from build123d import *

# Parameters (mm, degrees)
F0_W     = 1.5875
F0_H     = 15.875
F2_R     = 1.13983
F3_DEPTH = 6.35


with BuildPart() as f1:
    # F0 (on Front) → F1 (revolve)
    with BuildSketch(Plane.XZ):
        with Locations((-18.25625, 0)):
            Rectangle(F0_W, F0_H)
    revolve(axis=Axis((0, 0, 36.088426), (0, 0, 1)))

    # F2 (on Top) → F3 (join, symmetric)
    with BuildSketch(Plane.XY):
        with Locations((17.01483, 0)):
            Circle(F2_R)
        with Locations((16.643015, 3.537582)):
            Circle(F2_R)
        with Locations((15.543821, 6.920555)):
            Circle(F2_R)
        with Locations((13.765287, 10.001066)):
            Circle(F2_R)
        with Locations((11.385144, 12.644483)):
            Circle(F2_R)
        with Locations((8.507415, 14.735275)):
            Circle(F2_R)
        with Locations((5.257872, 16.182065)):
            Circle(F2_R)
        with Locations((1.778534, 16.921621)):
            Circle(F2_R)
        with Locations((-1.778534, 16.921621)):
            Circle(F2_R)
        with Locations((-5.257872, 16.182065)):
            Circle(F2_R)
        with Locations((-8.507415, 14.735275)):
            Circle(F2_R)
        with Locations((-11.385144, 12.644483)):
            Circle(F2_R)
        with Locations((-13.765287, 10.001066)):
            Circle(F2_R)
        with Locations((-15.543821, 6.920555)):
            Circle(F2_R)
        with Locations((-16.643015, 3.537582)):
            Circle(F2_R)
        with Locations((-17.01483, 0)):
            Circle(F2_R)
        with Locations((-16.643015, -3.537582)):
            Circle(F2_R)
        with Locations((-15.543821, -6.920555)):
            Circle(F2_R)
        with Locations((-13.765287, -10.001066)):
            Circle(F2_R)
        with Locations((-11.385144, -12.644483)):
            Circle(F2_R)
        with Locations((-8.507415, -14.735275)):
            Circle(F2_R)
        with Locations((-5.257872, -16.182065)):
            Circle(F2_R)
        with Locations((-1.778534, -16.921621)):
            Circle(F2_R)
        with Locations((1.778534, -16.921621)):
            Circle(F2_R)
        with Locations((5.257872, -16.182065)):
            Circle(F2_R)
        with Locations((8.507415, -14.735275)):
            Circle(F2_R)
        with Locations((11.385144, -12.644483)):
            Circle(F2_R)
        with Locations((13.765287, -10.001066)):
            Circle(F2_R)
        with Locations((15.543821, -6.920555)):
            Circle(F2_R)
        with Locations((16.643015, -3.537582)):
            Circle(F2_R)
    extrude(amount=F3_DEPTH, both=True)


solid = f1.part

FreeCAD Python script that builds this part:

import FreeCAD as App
import Part
import Sketcher
Q = App.Units.Quantity


def add_polygon(sketch, points):
    """Adds a closed chain of lines whose ends are joined by coincident constraints."""
    first, n = sketch.GeometryCount, len(points)
    for a, b in zip(points, points[1:] + points[:1]):
        sketch.addGeometry(Part.LineSegment(App.Vector(*a, 0), App.Vector(*b, 0)), False)
    for i in range(n):
        sketch.addConstraint(Sketcher.Constraint("Coincident", first + i, 2, first + (i + 1) % n, 1))

doc = App.newDocument("Part")
body = doc.addObject("PartDesign::Body", "Body")

sketch1 = doc.addObject("Sketcher::SketchObject", "Sketch")
body.addObject(sketch1)
sketch1.AttachmentSupport = (doc.XZ_Plane, [""])
sketch1.MapMode = "FlatFace"
add_polygon(sketch1, [(-19.1, 7.9), (-19.1, -7.9), (-17.5, -7.9), (-17.5, 7.9)])
sketch1.addConstraint([
    Sketcher.Constraint("Vertical", 0),
    Sketcher.Constraint("Horizontal", 1),
    Sketcher.Constraint("Vertical", 2),
    Sketcher.Constraint("Horizontal", 3),
    Sketcher.Constraint("DistanceX", 1, 1, 1, 2, Q("0.0625 in")),
    Sketcher.Constraint("DistanceY", 0, 2, 0, 1, Q("0.625 in")),
    Sketcher.Constraint("DistanceX", 0, 2, -1, 1, Q("0.75 in")),
    Sketcher.Constraint("DistanceY", 0, 2, -1, 1, Q("0.3125 in")),
])
revolution = doc.addObject("PartDesign::Revolution", "Revolution")
body.addObject(revolution)
revolution.Profile = sketch1
revolution.ReferenceAxis = (sketch1, ["V_Axis"])
revolution.Angle = 360

sketch2 = doc.addObject("Sketcher::SketchObject", "Sketch001")
body.addObject(sketch2)
sketch2.AttachmentSupport = (doc.XY_Plane, [""])
sketch2.MapMode = "FlatFace"
sketch2.addGeometry([
    Part.Circle(App.Vector(17, 0, 0), App.Vector(0, 0, 1), 1.1),
    Part.Circle(App.Vector(16.6, 3.5, 0), App.Vector(0, 0, 1), 1.1),
    Part.Circle(App.Vector(15.5, 6.9, 0), App.Vector(0, 0, 1), 1.1),
    Part.Circle(App.Vector(13.8, 10, 0), App.Vector(0, 0, 1), 1.1),
    Part.Circle(App.Vector(11.4, 12.6, 0), App.Vector(0, 0, 1), 1.1),
    Part.Circle(App.Vector(8.5, 14.7, 0), App.Vector(0, 0, 1), 1.1),
    Part.Circle(App.Vector(5.3, 16.2, 0), App.Vector(0, 0, 1), 1.1),
    Part.Circle(App.Vector(1.8, 16.9, 0), App.Vector(0, 0, 1), 1.1),
    Part.Circle(App.Vector(-1.8, 16.9, 0), App.Vector(0, 0, 1), 1.1),
    Part.Circle(App.Vector(-5.3, 16.2, 0), App.Vector(0, 0, 1), 1.1),
    Part.Circle(App.Vector(-8.5, 14.7, 0), App.Vector(0, 0, 1), 1.1),
    Part.Circle(App.Vector(-11.4, 12.6, 0), App.Vector(0, 0, 1), 1.1),
    Part.Circle(App.Vector(-13.8, 10, 0), App.Vector(0, 0, 1), 1.1),
    Part.Circle(App.Vector(-15.5, 6.9, 0), App.Vector(0, 0, 1), 1.1),
    Part.Circle(App.Vector(-16.6, 3.5, 0), App.Vector(0, 0, 1), 1.1),
    Part.Circle(App.Vector(-17, 0, 0), App.Vector(0, 0, 1), 1.1),
    Part.Circle(App.Vector(-16.6, -3.5, 0), App.Vector(0, 0, 1), 1.1),
    Part.Circle(App.Vector(-15.5, -6.9, 0), App.Vector(0, 0, 1), 1.1),
    Part.Circle(App.Vector(-13.8, -10, 0), App.Vector(0, 0, 1), 1.1),
    Part.Circle(App.Vector(-11.4, -12.6, 0), App.Vector(0, 0, 1), 1.1),
    Part.Circle(App.Vector(-8.5, -14.7, 0), App.Vector(0, 0, 1), 1.1),
    Part.Circle(App.Vector(-5.3, -16.2, 0), App.Vector(0, 0, 1), 1.1),
    Part.Circle(App.Vector(-1.8, -16.9, 0), App.Vector(0, 0, 1), 1.1),
    Part.Circle(App.Vector(1.8, -16.9, 0), App.Vector(0, 0, 1), 1.1),
    Part.Circle(App.Vector(5.3, -16.2, 0), App.Vector(0, 0, 1), 1.1),
    Part.Circle(App.Vector(8.5, -14.7, 0), App.Vector(0, 0, 1), 1.1),
    Part.Circle(App.Vector(11.4, -12.6, 0), App.Vector(0, 0, 1), 1.1),
    Part.Circle(App.Vector(13.8, -10, 0), App.Vector(0, 0, 1), 1.1),
    Part.Circle(App.Vector(15.5, -6.9, 0), App.Vector(0, 0, 1), 1.1),
    Part.Circle(App.Vector(16.6, -3.5, 0), App.Vector(0, 0, 1), 1.1),
], False)
sketch2.addConstraint([
    Sketcher.Constraint("Equal", 0, 1),
    Sketcher.Constraint("Equal", 1, 2),
    Sketcher.Constraint("Equal", 2, 3),
    Sketcher.Constraint("Equal", 3, 4),
    Sketcher.Constraint("Equal", 4, 5),
    Sketcher.Constraint("Equal", 5, 6),
    Sketcher.Constraint("Equal", 6, 7),
    Sketcher.Constraint("Equal", 7, 8),
    Sketcher.Constraint("Equal", 8, 9),
    Sketcher.Constraint("Equal", 9, 10),
    Sketcher.Constraint("Equal", 10, 11),
    Sketcher.Constraint("Equal", 11, 12),
    Sketcher.Constraint("Equal", 12, 13),
    Sketcher.Constraint("Equal", 13, 14),
    Sketcher.Constraint("Equal", 14, 15),
    Sketcher.Constraint("Equal", 15, 16),
    Sketcher.Constraint("Equal", 16, 17),
    Sketcher.Constraint("Equal", 17, 18),
    Sketcher.Constraint("Equal", 18, 19),
    Sketcher.Constraint("Equal", 19, 20),
    Sketcher.Constraint("Equal", 20, 21),
    Sketcher.Constraint("Equal", 21, 22),
    Sketcher.Constraint("Equal", 22, 23),
    Sketcher.Constraint("Equal", 23, 24),
    Sketcher.Constraint("Equal", 24, 25),
    Sketcher.Constraint("Equal", 25, 26),
    Sketcher.Constraint("Equal", 26, 27),
    Sketcher.Constraint("Equal", 27, 28),
    Sketcher.Constraint("Equal", 28, 29),
    Sketcher.Constraint("Symmetric", 0, 3, 15, 3, -1, 1),
    Sketcher.Constraint("Symmetric", 1, 3, 16, 3, -1, 1),
    Sketcher.Constraint("Symmetric", 2, 3, 17, 3, -1, 1),
    Sketcher.Constraint("Symmetric", 3, 3, 18, 3, -1, 1),
    Sketcher.Constraint("Symmetric", 4, 3, 19, 3, -1, 1),
    Sketcher.Constraint("Symmetric", 5, 3, 20, 3, -1, 1),
    Sketcher.Constraint("Symmetric", 6, 3, 21, 3, -1, 1),
    Sketcher.Constraint("Symmetric", 7, 3, 22, 3, -1, 1),
    Sketcher.Constraint("Symmetric", 8, 3, 23, 3, -1, 1),
    Sketcher.Constraint("Symmetric", 9, 3, 24, 3, -1, 1),
    Sketcher.Constraint("Symmetric", 10, 3, 25, 3, -1, 1),
    Sketcher.Constraint("Symmetric", 11, 3, 26, 3, -1, 1),
    Sketcher.Constraint("Symmetric", 12, 3, 27, 3, -1, 1),
    Sketcher.Constraint("Symmetric", 13, 3, 28, 3, -1, 1),
    Sketcher.Constraint("Symmetric", 14, 3, 29, 3, -1, 1),
    Sketcher.Constraint("Symmetric", 7, 3, 8, 3, -2),
    Sketcher.Constraint("Symmetric", 6, 3, 9, 3, -2),
    Sketcher.Constraint("Symmetric", 5, 3, 10, 3, -2),
    Sketcher.Constraint("Symmetric", 4, 3, 11, 3, -2),
    Sketcher.Constraint("Symmetric", 3, 3, 12, 3, -2),
    Sketcher.Constraint("Symmetric", 2, 3, 13, 3, -2),
    Sketcher.Constraint("Symmetric", 1, 3, 14, 3, -2),
    Sketcher.Constraint("PointOnObject", 0, 3, -1),
    Sketcher.Constraint("Diameter", 0, 2.27966),
    Sketcher.Constraint("DistanceY", 1, 3, 4, 3, 9.106901),
    Sketcher.Constraint("DistanceX", 5, 3, 1, 3, 8.1356),
    Sketcher.Constraint("DistanceY", 3, 3, 6, 3, 6.180999),
    Sketcher.Constraint("DistanceX", -1, 1, 0, 3, 17.01483),
    Sketcher.Constraint("DistanceY", -1, 1, 1, 3, 3.537582),
    Sketcher.Constraint("DistanceX", -1, 1, 2, 3, 15.543821),
    Sketcher.Constraint("DistanceY", -1, 1, 7, 3, 16.921621),
    Sketcher.Constraint("DistanceY", 2, 3, 3, 3, 3.080511),
    Sketcher.Constraint("DistanceX", 4, 3, 1, 3, 5.257871),
    Sketcher.Constraint("DistanceY", 3, 3, 5, 3, 4.734209),
    Sketcher.Constraint("DistanceX", 6, 3, 2, 3, 10.285949),
    Sketcher.Constraint("DistanceX", 7, 3, 5, 3, 6.728881),
    Sketcher.Constraint("DistanceX", 8, 3, 7, 3, 3.557068),
    Sketcher.Constraint("DistanceX", 8, 3, 3, 3, 15.543821),
    Sketcher.Constraint("DistanceY", 17, 3, 13, 3, 13.84111),
])
pad1 = doc.addObject("PartDesign::Pad", "Pad")
body.addObject(pad1)
pad1.Profile = sketch2
pad1.Length = Q("0.5 in")
pad1.Midplane = True

doc.recompute()
